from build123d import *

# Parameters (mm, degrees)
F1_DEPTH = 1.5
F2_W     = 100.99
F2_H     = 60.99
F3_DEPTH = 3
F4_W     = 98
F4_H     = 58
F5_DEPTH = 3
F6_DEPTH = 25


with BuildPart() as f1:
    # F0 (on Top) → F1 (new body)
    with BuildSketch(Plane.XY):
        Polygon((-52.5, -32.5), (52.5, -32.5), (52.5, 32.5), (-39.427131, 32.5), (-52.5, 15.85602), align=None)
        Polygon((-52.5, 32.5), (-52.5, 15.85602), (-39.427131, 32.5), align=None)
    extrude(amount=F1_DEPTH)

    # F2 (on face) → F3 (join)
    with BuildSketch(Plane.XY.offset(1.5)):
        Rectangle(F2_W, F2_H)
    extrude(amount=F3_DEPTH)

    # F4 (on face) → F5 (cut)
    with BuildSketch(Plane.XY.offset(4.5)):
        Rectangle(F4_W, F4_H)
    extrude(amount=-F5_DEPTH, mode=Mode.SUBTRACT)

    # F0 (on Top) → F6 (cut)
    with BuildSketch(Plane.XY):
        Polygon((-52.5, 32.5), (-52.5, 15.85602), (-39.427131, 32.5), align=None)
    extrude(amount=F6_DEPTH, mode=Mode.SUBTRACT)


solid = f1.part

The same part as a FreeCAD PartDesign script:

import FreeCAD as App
import Part
import Sketcher
from FreeCAD import Vector
Q = App.Units.Quantity

doc = App.newDocument("Part")
body = doc.addObject("PartDesign::Body", "Body")

sketch1 = doc.addObject("Sketcher::SketchObject", "Sketch")
body.addObject(sketch1)
sketch1.AttachmentSupport = (doc.XY_Plane, [""])
sketch1.MapMode = "FlatFace"
sketch1.addGeometry(Part.LineSegment(Vector(-52, -32, 0), Vector(52, -32, 0)), False)
sketch1.addGeometry(Part.LineSegment(Vector(52, -32, 0), Vector(52, 32, 0)), False)
sketch1.addGeometry(Part.LineSegment(Vector(52, 32, 0), Vector(-52, 32, 0)), False)
sketch1.addGeometry(Part.LineSegment(Vector(-52, 32, 0), Vector(-52, -32, 0)), False)
sketch1.addConstraint(Sketcher.Constraint("Coincident", 0, 2, 1, 1))
sketch1.addConstraint(Sketcher.Constraint("Coincident", 1, 2, 2, 1))
sketch1.addConstraint(Sketcher.Constraint("Coincident", 2, 2, 3, 1))
sketch1.addConstraint(Sketcher.Constraint("Coincident", 3, 2, 0, 1))
sketch1.addConstraint(Sketcher.Constraint("Horizontal", 0))
sketch1.addConstraint(Sketcher.Constraint("Vertical", 1))
sketch1.addConstraint(Sketcher.Constraint("Horizontal", 2))
sketch1.addConstraint(Sketcher.Constraint("Vertical", 3))
sketch1.addConstraint(Sketcher.Constraint("Symmetric", 0, 2, 2, 2, -1, 1))
sketch1.addConstraint(Sketcher.Constraint("DistanceX", 0, 1, 0, 2, Q("105 mm")))
sketch1.addConstraint(Sketcher.Constraint("DistanceY", 1, 1, 1, 2, Q("65 mm")))
pad1 = doc.addObject("PartDesign::Pad", "Pad")
body.addObject(pad1)
pad1.Profile = sketch1
pad1.Length = 1.5

sketch2 = doc.addObject("Sketcher::SketchObject", "Sketch001")
body.addObject(sketch2)
sketch2.AttachmentSupport = (doc.XY_Plane, [""])
sketch2.MapMode = "FlatFace"
sketch2.AttachmentOffset = App.Placement(Vector(0, 0, 1.5), App.Rotation())
sketch2.addGeometry(Part.LineSegment(Vector(-50, 30, 0), Vector(-50, -30, 0)), False)
sketch2.addGeometry(Part.LineSegment(Vector(-50, -30, 0), Vector(50, -30, 0)), False)
sketch2.addGeometry(Part.LineSegment(Vector(50, -30, 0), Vector(50, 30, 0)), False)
sketch2.addGeometry(Part.LineSegment(Vector(50, 30, 0), Vector(-50, 30, 0)), False)
sketch2.addConstraint(Sketcher.Constraint("Coincident", 0, 2, 1, 1))
sketch2.addConstraint(Sketcher.Constraint("Coincident", 1, 2, 2, 1))
sketch2.addConstraint(Sketcher.Constraint("Coincident", 2, 2, 3, 1))
sketch2.addConstraint(Sketcher.Constraint("Coincident", 3, 2, 0, 1))
sketch2.addConstraint(Sketcher.Constraint("Vertical", 0))
sketch2.addConstraint(Sketcher.Constraint("Horizontal", 1))
sketch2.addConstraint(Sketcher.Constraint("Vertical", 2))
sketch2.addConstraint(Sketcher.Constraint("Horizontal", 3))
sketch2.addConstraint(Sketcher.Constraint("Symmetric", 0, 2, 2, 2, -1, 1))
sketch2.addConstraint(Sketcher.Constraint("DistanceX", 1, 1, 1, 2, Q("100.99 mm")))
sketch2.addConstraint(Sketcher.Constraint("DistanceY", 0, 2, 0, 1, Q("60.99 mm")))
pad2 = doc.addObject("PartDesign::Pad", "Pad001")
body.addObject(pad2)
pad2.Profile = sketch2
pad2.Length = 3

sketch3 = doc.addObject("Sketcher::SketchObject", "Sketch002")
body.addObject(sketch3)
sketch3.AttachmentSupport = (doc.XY_Plane, [""])
sketch3.MapMode = "FlatFace"
sketch3.AttachmentOffset = App.Placement(Vector(0, 0, 4.5), App.Rotation())
sketch3.addGeometry(Part.LineSegment(Vector(-49, 29, 0), Vector(-49, -29, 0)), False)
sketch3.addGeometry(Part.LineSegment(Vector(-49, -29, 0), Vector(49, -29, 0)), False)
sketch3.addGeometry(Part.LineSegment(Vector(49, -29, 0), Vector(49, 29, 0)), False)
sketch3.addGeometry(Part.LineSegment(Vector(49, 29, 0), Vector(-49, 29, 0)), False)
sketch3.addConstraint(Sketcher.Constraint("Coincident", 0, 2, 1, 1))
sketch3.addConstraint(Sketcher.Constraint("Coincident", 1, 2, 2, 1))
sketch3.addConstraint(Sketcher.Constraint("Coincident", 2, 2, 3, 1))
sketch3.addConstraint(Sketcher.Constraint("Coincident", 3, 2, 0, 1))
sketch3.addConstraint(Sketcher.Constraint("Vertical", 0))
sketch3.addConstraint(Sketcher.Constraint("Horizontal", 1))
sketch3.addConstraint(Sketcher.Constraint("Vertical", 2))
sketch3.addConstraint(Sketcher.Constraint("Horizontal", 3))
sketch3.addConstraint(Sketcher.Constraint("Symmetric", 0, 2, 2, 2, -1, 1))
sketch3.addConstraint(Sketcher.Constraint("DistanceX", 1, 1, 1, 2, Q("98 mm")))
sketch3.addConstraint(Sketcher.Constraint("DistanceY", 0, 2, 0, 1, Q("58 mm")))
pocket1 = doc.addObject("PartDesign::Pocket", "Pocket")
body.addObject(pocket1)
pocket1.Profile = sketch3
pocket1.Length = 3

sketch4 = doc.addObject("Sketcher::SketchObject", "Sketch003")
body.addObject(sketch4)
sketch4.AttachmentSupport = (doc.XY_Plane, [""])
sketch4.MapMode = "FlatFace"
sketch4.addGeometry(Part.LineSegment(Vector(-52, 32, 0), Vector(-52, 16, 0)), False)
sketch4.addGeometry(Part.LineSegment(Vector(-52, 16, 0), Vector(-39, 32, 0)), False)
sketch4.addGeometry(Part.LineSegment(Vector(-39, 32, 0), Vector(-52, 32, 0)), False)
sketch4.addConstraint(Sketcher.Constraint("Coincident", 0, 2, 1, 1))
sketch4.addConstraint(Sketcher.Constraint("Coincident", 1, 2, 2, 1))
sketch4.addConstraint(Sketcher.Constraint("Coincident", 2, 2, 0, 1))
sketch4.addConstraint(Sketcher.Constraint("Vertical", 0))
sketch4.addConstraint(Sketcher.Constraint("Horizontal", 2))
sketch4.addConstraint(Sketcher.Constraint("DistanceX", 0, 2, -1, 1, Q("52.5 mm")))
sketch4.addConstraint(Sketcher.Constraint("DistanceY", -1, 1, 1, 2, Q("32.5 mm")))
sketch4.addConstraint(Sketcher.Constraint("DistanceX", 2, 2, 2, 1, Q("13.072869 mm")))
sketch4.addConstraint(Sketcher.Constraint("DistanceY", 0, 2, 0, 1, Q("16.64398 mm")))
pocket2 = doc.addObject("PartDesign::Pocket", "Pocket001")
body.addObject(pocket2)
pocket2.Profile = sketch4
pocket2.Length = 25
pocket2.Reversed = True

doc.recompute()
